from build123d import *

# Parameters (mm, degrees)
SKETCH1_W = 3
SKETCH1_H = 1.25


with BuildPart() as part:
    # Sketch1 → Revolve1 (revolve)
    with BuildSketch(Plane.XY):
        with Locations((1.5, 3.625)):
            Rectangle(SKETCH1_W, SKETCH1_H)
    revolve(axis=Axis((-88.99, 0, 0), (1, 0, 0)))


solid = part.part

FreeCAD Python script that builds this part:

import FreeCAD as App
import Part
import Sketcher
from FreeCAD import Vector


def add_polygon(sketch, points):
    """Adds a closed chain of lines whose ends are joined by coincident constraints."""
    first, n = sketch.GeometryCount, len(points)
    for a, b in zip(points, points[1:] + points[:1]):
        sketch.addGeometry(Part.LineSegment(App.Vector(*a, 0), App.Vector(*b, 0)), False)
    for i in range(n):
        sketch.addConstraint(Sketcher.Constraint("Coincident", first + i, 2, first + (i + 1) % n, 1))

doc = App.newDocument("Part")
body = doc.addObject("PartDesign::Body", "Body")

sketch1 = body.newObject("Sketcher::SketchObject", "Sketch")
sketch1.AttachmentSupport = (doc.getObject("XY_Plane"), [""])
sketch1.MapMode = "FlatFace"
add_polygon(sketch1, [(0, 4.2), (0, 3), (3, 3), (3, 4.2)])
sketch1.addConstraint(Sketcher.Constraint("Vertical", 0))
sketch1.addConstraint(Sketcher.Constraint("Horizontal", 1))
sketch1.addConstraint(Sketcher.Constraint("Vertical", 2))
sketch1.addConstraint(Sketcher.Constraint("Horizontal", 3))
sketch1.addConstraint(Sketcher.Constraint("PointOnObject", 0, 2, -2))
sketch1.addConstraint(Sketcher.Constraint("DistanceX", 1, 1, 1, 2, 3.0))
sketch1.addConstraint(Sketcher.Constraint("DistanceY", -1, 1, 0, 2, 3.0))
sketch1.addConstraint(Sketcher.Constraint("DistanceY", 0, 2, 0, 1, 1.25))
revolution = body.newObject("PartDesign::Revolution", "Revolution")
revolution.Profile = sketch1
revolution.ReferenceAxis = (sketch1, ["H_Axis"])
revolution.Angle = 360

doc.recompute()
